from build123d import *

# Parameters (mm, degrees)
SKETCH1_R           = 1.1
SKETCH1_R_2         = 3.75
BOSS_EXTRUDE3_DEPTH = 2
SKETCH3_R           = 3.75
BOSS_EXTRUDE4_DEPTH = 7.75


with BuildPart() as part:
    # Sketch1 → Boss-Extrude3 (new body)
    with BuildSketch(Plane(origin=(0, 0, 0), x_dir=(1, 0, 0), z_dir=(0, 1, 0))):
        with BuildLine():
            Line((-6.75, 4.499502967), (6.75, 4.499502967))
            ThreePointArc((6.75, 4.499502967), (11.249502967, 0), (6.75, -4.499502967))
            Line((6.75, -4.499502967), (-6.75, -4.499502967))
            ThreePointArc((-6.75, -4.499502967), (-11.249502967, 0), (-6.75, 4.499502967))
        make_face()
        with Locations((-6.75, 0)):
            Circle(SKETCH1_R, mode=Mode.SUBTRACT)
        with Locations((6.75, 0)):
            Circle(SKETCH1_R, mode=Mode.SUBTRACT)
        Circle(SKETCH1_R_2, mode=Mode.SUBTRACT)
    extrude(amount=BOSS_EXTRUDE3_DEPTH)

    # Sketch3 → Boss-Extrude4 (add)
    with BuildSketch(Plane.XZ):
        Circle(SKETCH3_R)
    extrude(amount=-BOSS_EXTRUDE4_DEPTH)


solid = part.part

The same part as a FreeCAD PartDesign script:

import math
import FreeCAD as App
import Part
import Sketcher
Q = App.Units.Quantity

doc = App.newDocument("Part")
body = doc.addObject("PartDesign::Body", "Body")

sketch1 = body.newObject("Sketcher::SketchObject", "Sketch")
sketch1.AttachmentSupport = (doc.getObject("XZ_Plane"), [""])
sketch1.MapMode = "FlatFace"
sketch1.addGeometry(Part.LineSegment(App.Vector(6.8, -4.5, 0), App.Vector(-6.8, -4.5, 0)), False)
sketch1.addGeometry(Part.ArcOfCircle(Part.Circle(App.Vector(-6.8, 0, 0), App.Vector(0, 0, 1), 4.5), math.radians(90), math.radians(270)), False)
sketch1.addGeometry(Part.LineSegment(App.Vector(-6.8, 4.5, 0), App.Vector(6.8, 4.5, 0)), False)
sketch1.addGeometry(Part.ArcOfCircle(Part.Circle(App.Vector(6.8, 0, 0), App.Vector(0, 0, 1), 4.5), math.radians(-90), math.radians(90)), False)
sketch1.addGeometry(Part.Circle(App.Vector(6.8, 0, 0), App.Vector(0, 0, 1), 1.1), False)
sketch1.addGeometry(Part.Circle(App.Vector(0, 0, 0), App.Vector(0, 0, 1), 3.8), False)
sketch1.addGeometry(Part.Circle(App.Vector(-6.8, 0, 0), App.Vector(0, 0, 1), 1.1), False)
sketch1.addConstraint(Sketcher.Constraint("Tangent", 0, 2, 1, 2))
sketch1.addConstraint(Sketcher.Constraint("Tangent", 1, 1, 2, 1))
sketch1.addConstraint(Sketcher.Constraint("Tangent", 2, 2, 3, 2))
sketch1.addConstraint(Sketcher.Constraint("Tangent", 3, 1, 0, 1))
sketch1.addConstraint(Sketcher.Constraint("Horizontal", 0))
sketch1.addConstraint(Sketcher.Constraint("Horizontal", 2))
sketch1.addConstraint(Sketcher.Constraint("Coincident", 5, 3, -1, 1))
sketch1.addConstraint(Sketcher.Constraint("Coincident", 4, 3, 3, 3))
sketch1.addConstraint(Sketcher.Constraint("Coincident", 6, 3, 1, 3))
sketch1.addConstraint(Sketcher.Constraint("Equal", 4, 6))
sketch1.addConstraint(Sketcher.Constraint("Symmetric", 1, 3, 3, 3, -1, 1))
sketch1.addConstraint(Sketcher.Constraint("Diameter", 4, Q("2.2 mm")))
sketch1.addConstraint(Sketcher.Constraint("Diameter", 5, Q("7.5 mm")))
sketch1.addConstraint(Sketcher.Constraint("DistanceX", 0, 2, 0, 1, Q("13.5 mm")))
sketch1.addConstraint(Sketcher.Constraint("Radius", 1, Q("4.499503 mm")))
pad1 = body.newObject("PartDesign::Pad", "Pad")
pad1.Profile = sketch1
pad1.Length = 2
pad1.Reversed = True

sketch2 = body.newObject("Sketcher::SketchObject", "Sketch001")
sketch2.AttachmentSupport = (doc.getObject("XZ_Plane"), [""])
sketch2.MapMode = "FlatFace"
sketch2.addGeometry(Part.Circle(App.Vector(0, 0, 0), App.Vector(0, 0, 1), 3.8), False)
sketch2.addConstraint(Sketcher.Constraint("Coincident", 0, 3, -1, 1))
sketch2.addConstraint(Sketcher.Constraint("Diameter", 0, Q("7.5 mm")))
pad2 = body.newObject("PartDesign::Pad", "Pad001")
pad2.Profile = sketch2
pad2.Length = 7.75
pad2.Reversed = True

doc.recompute()
